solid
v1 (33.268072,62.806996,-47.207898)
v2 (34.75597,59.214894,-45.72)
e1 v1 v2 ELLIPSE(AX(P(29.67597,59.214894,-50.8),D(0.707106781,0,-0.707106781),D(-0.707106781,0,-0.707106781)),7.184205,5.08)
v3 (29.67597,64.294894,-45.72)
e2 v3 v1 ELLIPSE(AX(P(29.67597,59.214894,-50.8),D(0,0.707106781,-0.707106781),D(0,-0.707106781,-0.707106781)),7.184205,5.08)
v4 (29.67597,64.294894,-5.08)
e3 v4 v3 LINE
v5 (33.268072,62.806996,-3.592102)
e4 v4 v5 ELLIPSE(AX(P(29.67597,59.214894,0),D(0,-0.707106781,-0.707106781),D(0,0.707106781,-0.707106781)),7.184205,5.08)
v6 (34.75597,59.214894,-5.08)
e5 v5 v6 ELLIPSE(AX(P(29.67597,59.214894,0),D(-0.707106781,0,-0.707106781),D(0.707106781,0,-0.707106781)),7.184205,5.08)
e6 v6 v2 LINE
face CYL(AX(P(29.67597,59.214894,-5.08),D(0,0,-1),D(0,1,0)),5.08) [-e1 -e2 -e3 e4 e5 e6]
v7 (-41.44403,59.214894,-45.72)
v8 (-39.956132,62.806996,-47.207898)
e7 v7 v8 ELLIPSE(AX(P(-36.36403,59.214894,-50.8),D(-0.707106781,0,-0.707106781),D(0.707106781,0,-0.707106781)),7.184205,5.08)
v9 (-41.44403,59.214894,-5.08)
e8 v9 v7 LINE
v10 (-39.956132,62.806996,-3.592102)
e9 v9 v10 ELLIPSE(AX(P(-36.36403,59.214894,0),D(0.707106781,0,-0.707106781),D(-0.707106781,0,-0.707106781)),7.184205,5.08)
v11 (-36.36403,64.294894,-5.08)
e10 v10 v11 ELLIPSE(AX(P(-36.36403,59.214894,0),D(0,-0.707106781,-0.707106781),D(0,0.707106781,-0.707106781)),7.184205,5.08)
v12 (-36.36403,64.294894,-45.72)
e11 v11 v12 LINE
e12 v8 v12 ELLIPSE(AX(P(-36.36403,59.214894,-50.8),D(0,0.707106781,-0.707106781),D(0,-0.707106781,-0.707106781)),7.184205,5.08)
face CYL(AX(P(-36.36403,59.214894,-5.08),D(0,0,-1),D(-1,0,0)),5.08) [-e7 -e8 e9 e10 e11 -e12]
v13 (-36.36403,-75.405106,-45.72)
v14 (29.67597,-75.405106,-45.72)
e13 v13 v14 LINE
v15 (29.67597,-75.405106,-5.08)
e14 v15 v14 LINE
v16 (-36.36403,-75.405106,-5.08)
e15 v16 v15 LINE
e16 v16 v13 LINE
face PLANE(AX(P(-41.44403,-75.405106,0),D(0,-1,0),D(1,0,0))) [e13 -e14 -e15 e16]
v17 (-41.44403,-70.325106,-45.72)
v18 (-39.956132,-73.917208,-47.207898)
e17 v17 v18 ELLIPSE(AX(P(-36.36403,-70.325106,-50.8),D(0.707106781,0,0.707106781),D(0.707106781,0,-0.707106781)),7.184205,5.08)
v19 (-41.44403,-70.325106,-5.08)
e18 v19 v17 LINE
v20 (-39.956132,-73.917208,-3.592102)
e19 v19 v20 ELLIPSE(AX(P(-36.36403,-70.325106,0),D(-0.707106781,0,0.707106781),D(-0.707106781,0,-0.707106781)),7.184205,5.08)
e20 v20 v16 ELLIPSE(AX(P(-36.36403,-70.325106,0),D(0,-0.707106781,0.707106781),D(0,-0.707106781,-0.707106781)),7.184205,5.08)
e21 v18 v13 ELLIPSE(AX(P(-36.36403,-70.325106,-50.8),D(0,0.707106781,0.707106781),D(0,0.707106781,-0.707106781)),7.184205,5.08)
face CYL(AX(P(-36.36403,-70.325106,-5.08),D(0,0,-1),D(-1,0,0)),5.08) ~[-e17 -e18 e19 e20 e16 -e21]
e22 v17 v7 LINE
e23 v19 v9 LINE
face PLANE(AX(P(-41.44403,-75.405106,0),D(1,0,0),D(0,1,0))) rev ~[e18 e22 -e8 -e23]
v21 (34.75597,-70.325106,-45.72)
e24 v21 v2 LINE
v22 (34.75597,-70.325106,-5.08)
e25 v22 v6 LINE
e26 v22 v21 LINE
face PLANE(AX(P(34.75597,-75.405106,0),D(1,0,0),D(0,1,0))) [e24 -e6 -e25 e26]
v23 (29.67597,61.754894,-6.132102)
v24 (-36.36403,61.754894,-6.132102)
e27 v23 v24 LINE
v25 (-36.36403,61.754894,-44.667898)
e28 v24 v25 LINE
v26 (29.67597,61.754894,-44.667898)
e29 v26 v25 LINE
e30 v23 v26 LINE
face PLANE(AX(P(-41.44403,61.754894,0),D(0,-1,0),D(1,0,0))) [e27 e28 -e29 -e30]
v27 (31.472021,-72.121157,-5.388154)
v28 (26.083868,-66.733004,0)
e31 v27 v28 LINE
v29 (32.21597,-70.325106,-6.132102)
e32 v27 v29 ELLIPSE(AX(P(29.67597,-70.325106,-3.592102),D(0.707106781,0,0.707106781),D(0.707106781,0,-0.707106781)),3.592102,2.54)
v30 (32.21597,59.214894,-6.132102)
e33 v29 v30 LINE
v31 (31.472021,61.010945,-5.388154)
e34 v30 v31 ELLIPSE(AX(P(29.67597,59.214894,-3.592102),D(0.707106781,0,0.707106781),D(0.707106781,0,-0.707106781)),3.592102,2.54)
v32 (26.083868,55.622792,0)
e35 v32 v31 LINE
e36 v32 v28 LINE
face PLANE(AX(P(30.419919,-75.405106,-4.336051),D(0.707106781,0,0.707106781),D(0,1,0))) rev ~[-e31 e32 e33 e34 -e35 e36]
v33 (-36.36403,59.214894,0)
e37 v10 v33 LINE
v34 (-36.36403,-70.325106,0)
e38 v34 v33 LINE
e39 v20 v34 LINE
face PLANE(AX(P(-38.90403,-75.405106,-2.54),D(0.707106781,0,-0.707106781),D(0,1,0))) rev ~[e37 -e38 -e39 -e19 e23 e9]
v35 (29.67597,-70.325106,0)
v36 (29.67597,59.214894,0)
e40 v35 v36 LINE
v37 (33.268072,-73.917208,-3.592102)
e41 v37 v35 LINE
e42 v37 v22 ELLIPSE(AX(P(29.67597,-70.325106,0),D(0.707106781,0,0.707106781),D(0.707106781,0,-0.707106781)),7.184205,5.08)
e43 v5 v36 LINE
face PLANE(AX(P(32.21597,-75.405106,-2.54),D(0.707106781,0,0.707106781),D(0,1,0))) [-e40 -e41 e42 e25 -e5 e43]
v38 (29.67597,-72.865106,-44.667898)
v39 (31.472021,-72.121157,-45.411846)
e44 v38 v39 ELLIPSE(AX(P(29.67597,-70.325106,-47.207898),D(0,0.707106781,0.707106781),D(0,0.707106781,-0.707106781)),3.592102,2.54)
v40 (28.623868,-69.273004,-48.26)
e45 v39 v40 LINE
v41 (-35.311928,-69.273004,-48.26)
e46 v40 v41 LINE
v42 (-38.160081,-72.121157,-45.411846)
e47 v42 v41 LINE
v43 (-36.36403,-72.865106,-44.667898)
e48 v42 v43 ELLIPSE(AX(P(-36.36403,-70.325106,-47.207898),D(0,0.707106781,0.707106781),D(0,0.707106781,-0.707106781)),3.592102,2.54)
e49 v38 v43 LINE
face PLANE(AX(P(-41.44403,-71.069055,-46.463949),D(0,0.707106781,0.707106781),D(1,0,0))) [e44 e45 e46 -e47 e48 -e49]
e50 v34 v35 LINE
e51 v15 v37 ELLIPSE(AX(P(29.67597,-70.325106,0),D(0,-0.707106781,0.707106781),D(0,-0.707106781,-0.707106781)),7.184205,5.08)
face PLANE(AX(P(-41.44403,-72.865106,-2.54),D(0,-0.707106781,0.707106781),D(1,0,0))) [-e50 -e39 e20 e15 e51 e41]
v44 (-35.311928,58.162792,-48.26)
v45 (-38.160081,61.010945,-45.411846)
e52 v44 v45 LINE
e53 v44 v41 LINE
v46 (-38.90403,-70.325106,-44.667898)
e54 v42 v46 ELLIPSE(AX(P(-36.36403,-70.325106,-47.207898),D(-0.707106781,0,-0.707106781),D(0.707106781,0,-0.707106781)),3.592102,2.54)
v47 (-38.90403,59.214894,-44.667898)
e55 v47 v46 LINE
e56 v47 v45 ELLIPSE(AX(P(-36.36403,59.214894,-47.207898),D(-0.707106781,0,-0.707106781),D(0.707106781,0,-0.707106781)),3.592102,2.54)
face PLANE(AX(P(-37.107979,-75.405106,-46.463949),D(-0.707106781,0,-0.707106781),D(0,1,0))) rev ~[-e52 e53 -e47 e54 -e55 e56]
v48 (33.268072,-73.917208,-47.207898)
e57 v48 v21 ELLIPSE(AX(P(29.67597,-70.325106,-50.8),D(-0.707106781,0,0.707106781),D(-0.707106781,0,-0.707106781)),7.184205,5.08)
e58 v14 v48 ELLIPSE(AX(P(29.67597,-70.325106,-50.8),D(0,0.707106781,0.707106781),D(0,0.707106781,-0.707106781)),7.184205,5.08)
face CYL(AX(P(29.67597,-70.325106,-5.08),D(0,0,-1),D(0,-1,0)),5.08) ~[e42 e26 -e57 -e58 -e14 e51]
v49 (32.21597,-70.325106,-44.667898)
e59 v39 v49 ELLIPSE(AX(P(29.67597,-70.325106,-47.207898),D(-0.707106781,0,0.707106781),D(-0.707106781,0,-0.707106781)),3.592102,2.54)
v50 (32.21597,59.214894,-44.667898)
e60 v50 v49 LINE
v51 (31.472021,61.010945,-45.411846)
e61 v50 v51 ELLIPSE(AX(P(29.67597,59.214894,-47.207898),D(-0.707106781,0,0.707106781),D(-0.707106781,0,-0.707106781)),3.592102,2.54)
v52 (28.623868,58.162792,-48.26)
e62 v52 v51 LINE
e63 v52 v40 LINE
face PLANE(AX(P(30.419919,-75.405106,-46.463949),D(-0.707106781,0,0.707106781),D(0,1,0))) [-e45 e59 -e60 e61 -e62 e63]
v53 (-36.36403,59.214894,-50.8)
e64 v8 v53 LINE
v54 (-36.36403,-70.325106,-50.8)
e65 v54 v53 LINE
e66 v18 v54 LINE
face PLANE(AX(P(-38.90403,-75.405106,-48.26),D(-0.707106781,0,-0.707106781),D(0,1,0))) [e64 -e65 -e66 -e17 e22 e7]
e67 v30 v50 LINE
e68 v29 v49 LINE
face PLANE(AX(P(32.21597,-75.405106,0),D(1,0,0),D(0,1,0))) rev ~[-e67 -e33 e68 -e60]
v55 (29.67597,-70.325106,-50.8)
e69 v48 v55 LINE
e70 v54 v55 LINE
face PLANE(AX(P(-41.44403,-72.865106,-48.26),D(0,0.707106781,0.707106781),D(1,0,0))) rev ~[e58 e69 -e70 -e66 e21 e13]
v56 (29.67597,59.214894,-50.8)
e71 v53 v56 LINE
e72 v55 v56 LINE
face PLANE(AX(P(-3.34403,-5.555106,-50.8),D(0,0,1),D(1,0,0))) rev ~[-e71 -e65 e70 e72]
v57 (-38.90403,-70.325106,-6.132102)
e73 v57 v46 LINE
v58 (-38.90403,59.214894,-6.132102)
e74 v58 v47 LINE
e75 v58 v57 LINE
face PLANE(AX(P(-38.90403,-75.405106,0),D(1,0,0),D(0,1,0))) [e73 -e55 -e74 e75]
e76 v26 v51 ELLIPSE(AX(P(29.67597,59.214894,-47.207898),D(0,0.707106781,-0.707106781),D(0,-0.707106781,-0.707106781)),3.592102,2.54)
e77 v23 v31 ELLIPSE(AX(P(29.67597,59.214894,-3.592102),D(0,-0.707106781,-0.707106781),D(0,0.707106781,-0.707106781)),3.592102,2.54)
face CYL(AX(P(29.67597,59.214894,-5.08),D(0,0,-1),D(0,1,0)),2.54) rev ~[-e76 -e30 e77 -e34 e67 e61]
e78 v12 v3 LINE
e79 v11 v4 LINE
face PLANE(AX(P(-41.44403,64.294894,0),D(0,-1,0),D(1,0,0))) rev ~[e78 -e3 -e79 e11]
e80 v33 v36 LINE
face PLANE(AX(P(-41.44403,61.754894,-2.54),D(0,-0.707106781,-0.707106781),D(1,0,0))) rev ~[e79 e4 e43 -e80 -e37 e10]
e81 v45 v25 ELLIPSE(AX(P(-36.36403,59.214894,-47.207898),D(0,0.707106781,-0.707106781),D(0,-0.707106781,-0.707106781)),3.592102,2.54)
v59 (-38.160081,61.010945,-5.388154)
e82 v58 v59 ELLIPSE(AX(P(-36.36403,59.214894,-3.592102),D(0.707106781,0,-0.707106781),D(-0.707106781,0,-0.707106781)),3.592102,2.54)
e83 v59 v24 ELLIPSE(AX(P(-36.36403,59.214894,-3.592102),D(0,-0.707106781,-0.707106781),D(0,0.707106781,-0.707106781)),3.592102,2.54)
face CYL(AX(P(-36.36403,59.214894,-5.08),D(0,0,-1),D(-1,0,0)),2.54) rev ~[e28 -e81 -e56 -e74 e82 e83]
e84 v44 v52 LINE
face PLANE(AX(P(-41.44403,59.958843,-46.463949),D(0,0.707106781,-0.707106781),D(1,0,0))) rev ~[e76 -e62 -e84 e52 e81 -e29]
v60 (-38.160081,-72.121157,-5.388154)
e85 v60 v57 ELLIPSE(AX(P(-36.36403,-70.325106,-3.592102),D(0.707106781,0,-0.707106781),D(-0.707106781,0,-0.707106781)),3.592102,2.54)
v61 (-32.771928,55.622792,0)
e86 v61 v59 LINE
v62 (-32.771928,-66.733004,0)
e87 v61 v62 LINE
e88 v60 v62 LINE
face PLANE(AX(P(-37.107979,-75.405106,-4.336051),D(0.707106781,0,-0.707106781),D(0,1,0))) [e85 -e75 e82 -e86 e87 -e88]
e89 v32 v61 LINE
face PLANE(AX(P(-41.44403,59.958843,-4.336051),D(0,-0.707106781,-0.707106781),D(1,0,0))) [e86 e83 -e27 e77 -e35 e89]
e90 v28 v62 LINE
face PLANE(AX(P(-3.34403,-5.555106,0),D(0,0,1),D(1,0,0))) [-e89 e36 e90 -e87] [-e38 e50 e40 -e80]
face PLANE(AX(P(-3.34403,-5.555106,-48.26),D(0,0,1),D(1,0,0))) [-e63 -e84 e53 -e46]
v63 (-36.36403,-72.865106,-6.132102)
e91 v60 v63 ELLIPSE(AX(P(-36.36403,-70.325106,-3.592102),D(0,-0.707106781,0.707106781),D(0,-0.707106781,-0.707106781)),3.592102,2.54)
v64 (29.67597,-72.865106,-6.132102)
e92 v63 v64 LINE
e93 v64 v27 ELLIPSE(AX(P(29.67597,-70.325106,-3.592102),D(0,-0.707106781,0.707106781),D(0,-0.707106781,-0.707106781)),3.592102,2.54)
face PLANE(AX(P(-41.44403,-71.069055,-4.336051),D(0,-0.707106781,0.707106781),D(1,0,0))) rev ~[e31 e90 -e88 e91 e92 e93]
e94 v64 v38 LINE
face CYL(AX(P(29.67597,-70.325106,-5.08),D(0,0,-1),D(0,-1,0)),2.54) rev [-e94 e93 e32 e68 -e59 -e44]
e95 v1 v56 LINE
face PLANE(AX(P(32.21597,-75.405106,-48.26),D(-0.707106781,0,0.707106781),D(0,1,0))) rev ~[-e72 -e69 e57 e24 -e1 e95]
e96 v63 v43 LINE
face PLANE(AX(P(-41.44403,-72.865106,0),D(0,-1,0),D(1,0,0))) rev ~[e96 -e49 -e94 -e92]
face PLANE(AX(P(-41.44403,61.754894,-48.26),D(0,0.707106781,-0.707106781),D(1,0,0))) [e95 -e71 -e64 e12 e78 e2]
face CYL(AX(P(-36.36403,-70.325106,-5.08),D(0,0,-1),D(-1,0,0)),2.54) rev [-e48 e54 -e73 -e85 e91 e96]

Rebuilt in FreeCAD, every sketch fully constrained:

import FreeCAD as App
import Part
import Sketcher
from FreeCAD import Vector
Q = App.Units.Quantity


def edges_at(feature, points):
    """Names of the edges that pass closest to the given points."""
    edges = feature.Shape.Edges
    near = lambda p: min(range(len(edges)), key=lambda i: edges[i].distToShape(Part.Vertex(*p))[0])
    return sorted({f"Edge{near(p) + 1}" for p in points})


def faces_at(feature, points):
    """Names of the faces that lie closest to the given points."""
    faces = feature.Shape.Faces
    near = lambda p: min(range(len(faces)), key=lambda i: faces[i].distToShape(Part.Vertex(*p))[0])
    return sorted({f"Face{near(p) + 1}" for p in points})

doc = App.newDocument("Part")
params = doc.addObject("Spreadsheet::Sheet", "Params")
for row, (alias, value) in enumerate([
    ("sketch1_width", "3 in"),
    ("sketch1_height", "5.5 in"),
    ("pad1_length", "2 in"),
    ("chamfer_size", "0.2 in"),
    ("fillet_radius", "0.2 in"),
    ("thickness_wall", "0.1 in"),
], start=1):
    params.set(f"A{row}", alias)
    params.set(f"B{row}", "=" + value)
    params.setAlias(f"B{row}", alias)

body = doc.addObject("PartDesign::Body", "Body")

sketch1 = doc.addObject("Sketcher::SketchObject", "Sketch")
body.addObject(sketch1)
sketch1.AttachmentSupport = (doc.XY_Plane, [""])
sketch1.MapMode = "FlatFace"
sketch1.addGeometry([
    Part.LineSegment(Vector(-41, 64, 0), Vector(-41, -75, 0)),
    Part.LineSegment(Vector(-41, -75, 0), Vector(35, -75, 0)),
    Part.LineSegment(Vector(35, -75, 0), Vector(35, 64, 0)),
    Part.LineSegment(Vector(35, 64, 0), Vector(-41, 64, 0)),
], False)
sketch1.addConstraint([
    Sketcher.Constraint("Coincident", 0, 2, 1, 1),
    Sketcher.Constraint("Coincident", 1, 2, 2, 1),
    Sketcher.Constraint("Coincident", 2, 2, 3, 1),
    Sketcher.Constraint("Coincident", 3, 2, 0, 1),
    Sketcher.Constraint("Vertical", 0),
    Sketcher.Constraint("Horizontal", 1),
    Sketcher.Constraint("Vertical", 2),
    Sketcher.Constraint("Horizontal", 3),
    Sketcher.Constraint("DistanceX", 1, 1, 1, 2, Q("3 in")),
    Sketcher.Constraint("DistanceY", 0, 2, 0, 1, Q("5.5 in")),
    Sketcher.Constraint("DistanceX", 0, 2, -1, 1, Q("41.44403 mm")),
    Sketcher.Constraint("DistanceY", 0, 2, -1, 1, Q("75.405106 mm")),
])
sketch1.setExpression("Constraints[8]", "Params.sketch1_width")
sketch1.setExpression("Constraints[9]", "Params.sketch1_height")
pad1 = doc.addObject("PartDesign::Pad", "Pad")
body.addObject(pad1)
pad1.Profile = sketch1
pad1.setExpression("Length", "Params.pad1_length")
pad1.Reversed = True
doc.recompute()

chamfer = doc.addObject("PartDesign::Chamfer", "Chamfer")
body.addObject(chamfer)
chamfer.Base = (pad1, edges_at(pad1, [
    (-3.344, -75.405, 0),
    (34.756, -5.555, 0),
    (-41.444, -5.555, 0),
    (-3.344, 64.295, 0),
    (34.756, -5.555, -50.8),
    (-3.344, -75.405, -50.8),
    (-3.344, 64.295, -50.8),
    (-41.444, -5.555, -50.8),
]))
chamfer.setExpression("Size", "Params.chamfer_size")
doc.recompute()

fillet = doc.addObject("PartDesign::Fillet", "Fillet")
body.addObject(fillet)
fillet.Base = (chamfer, edges_at(chamfer, [
    (34.756, -75.405, -25.4),
    (34.756, 64.295, -25.4),
    (-41.444, 64.295, -25.4),
    (-41.444, -75.405, -25.4),
]))
fillet.setExpression("Radius", "Params.fillet_radius")
doc.recompute()

thickness = doc.addObject("PartDesign::Thickness", "Thickness")
body.addObject(thickness)
thickness.Base = (fillet, faces_at(fillet, [(-3.344, -5.555, 0)]))
thickness.setExpression("Value", "Params.thickness_wall")
thickness.Reversed = True
thickness.Join = "Arc"

doc.recompute()
